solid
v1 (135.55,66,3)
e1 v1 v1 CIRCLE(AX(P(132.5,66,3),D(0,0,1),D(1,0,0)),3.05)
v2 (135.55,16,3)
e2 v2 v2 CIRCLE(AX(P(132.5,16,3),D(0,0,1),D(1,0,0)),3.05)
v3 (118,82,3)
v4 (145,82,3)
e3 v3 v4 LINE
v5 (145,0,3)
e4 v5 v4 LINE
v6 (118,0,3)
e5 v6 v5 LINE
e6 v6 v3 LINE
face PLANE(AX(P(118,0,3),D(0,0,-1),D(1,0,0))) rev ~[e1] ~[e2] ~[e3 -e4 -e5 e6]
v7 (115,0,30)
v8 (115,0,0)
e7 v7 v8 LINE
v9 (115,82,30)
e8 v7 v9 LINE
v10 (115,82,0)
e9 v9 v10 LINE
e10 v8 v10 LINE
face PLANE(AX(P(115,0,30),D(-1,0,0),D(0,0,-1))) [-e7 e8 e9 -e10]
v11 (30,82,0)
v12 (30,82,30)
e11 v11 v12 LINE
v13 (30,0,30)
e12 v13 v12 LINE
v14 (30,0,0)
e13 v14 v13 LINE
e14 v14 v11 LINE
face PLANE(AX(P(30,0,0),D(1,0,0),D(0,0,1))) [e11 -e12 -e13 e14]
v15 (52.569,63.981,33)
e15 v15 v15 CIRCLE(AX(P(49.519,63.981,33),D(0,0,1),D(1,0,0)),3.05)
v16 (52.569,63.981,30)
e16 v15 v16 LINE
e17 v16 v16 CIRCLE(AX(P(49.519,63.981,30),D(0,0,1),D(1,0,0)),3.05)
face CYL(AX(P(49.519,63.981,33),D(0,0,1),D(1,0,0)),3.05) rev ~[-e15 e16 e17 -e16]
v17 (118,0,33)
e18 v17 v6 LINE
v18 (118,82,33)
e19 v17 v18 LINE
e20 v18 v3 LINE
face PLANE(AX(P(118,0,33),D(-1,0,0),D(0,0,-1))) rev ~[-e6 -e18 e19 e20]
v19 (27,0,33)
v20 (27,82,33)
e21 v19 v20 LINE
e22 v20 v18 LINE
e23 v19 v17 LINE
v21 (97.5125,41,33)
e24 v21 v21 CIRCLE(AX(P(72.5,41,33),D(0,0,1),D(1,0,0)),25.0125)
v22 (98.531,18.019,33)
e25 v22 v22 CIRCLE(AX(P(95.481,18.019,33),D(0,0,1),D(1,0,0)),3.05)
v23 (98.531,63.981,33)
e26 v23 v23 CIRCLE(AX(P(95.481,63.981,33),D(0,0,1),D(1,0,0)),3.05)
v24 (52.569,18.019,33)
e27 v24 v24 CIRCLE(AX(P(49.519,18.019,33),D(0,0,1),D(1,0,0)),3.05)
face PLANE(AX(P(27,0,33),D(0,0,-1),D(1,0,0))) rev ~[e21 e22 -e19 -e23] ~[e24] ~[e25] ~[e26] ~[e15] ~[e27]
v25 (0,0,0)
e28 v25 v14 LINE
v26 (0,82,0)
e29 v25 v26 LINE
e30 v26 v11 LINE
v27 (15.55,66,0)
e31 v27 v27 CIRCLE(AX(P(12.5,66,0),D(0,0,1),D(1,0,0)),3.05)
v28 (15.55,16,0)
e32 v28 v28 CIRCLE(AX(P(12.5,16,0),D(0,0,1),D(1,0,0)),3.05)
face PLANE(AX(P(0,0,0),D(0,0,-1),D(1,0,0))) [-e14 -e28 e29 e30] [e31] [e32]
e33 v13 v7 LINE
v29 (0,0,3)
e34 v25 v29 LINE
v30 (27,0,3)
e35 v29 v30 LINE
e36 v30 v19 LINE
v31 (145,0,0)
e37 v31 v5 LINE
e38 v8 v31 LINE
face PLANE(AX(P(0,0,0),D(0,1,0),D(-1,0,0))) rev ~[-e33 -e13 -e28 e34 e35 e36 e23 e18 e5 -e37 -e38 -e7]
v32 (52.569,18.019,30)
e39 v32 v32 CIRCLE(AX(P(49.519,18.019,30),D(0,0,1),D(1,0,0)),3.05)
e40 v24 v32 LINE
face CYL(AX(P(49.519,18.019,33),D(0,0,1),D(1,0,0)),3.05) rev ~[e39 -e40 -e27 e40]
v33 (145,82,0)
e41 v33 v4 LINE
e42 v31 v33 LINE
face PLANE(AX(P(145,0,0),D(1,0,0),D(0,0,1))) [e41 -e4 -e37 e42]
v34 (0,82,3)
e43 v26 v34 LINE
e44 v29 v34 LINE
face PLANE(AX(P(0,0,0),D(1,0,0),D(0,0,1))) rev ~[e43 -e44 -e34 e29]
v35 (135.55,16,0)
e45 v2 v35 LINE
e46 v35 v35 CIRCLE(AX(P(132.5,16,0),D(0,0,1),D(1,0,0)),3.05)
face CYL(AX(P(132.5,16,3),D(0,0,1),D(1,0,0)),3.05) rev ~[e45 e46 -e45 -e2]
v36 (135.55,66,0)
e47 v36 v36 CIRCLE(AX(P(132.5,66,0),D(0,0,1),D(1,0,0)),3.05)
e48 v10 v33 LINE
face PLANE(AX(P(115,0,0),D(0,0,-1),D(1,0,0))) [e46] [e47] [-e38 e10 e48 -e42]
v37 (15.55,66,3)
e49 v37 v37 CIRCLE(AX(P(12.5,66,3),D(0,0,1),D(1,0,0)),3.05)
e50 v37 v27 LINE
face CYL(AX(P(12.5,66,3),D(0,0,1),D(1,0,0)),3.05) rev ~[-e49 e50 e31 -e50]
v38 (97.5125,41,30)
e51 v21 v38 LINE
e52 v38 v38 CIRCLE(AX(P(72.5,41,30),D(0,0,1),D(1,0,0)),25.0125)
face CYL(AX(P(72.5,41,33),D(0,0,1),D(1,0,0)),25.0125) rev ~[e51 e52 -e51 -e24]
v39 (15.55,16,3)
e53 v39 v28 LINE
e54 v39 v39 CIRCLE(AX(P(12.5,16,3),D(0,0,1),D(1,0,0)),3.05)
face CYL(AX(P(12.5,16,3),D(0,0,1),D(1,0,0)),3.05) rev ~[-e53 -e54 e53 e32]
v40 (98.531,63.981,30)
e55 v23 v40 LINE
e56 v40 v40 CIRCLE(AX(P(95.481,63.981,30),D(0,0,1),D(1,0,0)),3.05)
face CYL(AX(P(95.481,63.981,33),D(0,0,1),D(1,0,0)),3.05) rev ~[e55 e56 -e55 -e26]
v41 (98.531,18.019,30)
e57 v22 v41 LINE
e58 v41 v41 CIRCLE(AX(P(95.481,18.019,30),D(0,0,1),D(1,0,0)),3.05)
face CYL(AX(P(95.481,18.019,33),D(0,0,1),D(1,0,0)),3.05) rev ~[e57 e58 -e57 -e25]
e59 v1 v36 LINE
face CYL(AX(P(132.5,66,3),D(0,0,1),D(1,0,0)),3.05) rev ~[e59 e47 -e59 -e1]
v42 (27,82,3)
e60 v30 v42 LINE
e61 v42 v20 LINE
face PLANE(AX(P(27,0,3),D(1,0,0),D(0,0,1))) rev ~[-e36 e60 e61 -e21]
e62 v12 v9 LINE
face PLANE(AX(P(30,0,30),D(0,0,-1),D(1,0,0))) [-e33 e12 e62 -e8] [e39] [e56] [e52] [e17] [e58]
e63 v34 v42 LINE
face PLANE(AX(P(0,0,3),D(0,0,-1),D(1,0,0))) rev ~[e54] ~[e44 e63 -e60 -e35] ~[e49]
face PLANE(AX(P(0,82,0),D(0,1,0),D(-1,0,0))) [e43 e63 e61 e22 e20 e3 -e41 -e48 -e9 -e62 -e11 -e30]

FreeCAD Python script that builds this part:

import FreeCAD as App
import Part
import Sketcher
from FreeCAD import Vector


def add_polygon(sketch, points):
    """Adds a closed chain of lines whose ends are joined by coincident constraints."""
    first, n = sketch.GeometryCount, len(points)
    for a, b in zip(points, points[1:] + points[:1]):
        sketch.addGeometry(Part.LineSegment(App.Vector(*a, 0), App.Vector(*b, 0)), False)
    for i in range(n):
        sketch.addConstraint(Sketcher.Constraint("Coincident", first + i, 2, first + (i + 1) % n, 1))

doc = App.newDocument("Part")
body = doc.addObject("PartDesign::Body", "Body")

# Sketch on XZ plane
sketch1 = doc.addObject("Sketcher::SketchObject", "Sketch")
body.addObject(sketch1)
sketch1.AttachmentSupport = (doc.XZ_Plane, [""])
sketch1.MapMode = "FlatFace"
add_polygon(sketch1, [(30, 0), (0, 0), (0, 3), (27, 3), (27, 33), (118, 33), (118, 3), (145, 3), (145, 0), (115, 0), (115, 30), (30, 30)])  # lines 0-11
sketch1.addConstraint(Sketcher.Constraint("Horizontal", 0))
sketch1.addConstraint(Sketcher.Constraint("Vertical", 1))
sketch1.addConstraint(Sketcher.Constraint("Horizontal", 2))
sketch1.addConstraint(Sketcher.Constraint("Vertical", 3))
sketch1.addConstraint(Sketcher.Constraint("Horizontal", 4))
sketch1.addConstraint(Sketcher.Constraint("Vertical", 5))
sketch1.addConstraint(Sketcher.Constraint("Horizontal", 6))
sketch1.addConstraint(Sketcher.Constraint("Vertical", 7))
sketch1.addConstraint(Sketcher.Constraint("Horizontal", 8))
sketch1.addConstraint(Sketcher.Constraint("Vertical", 9))
sketch1.addConstraint(Sketcher.Constraint("Horizontal", 10))
sketch1.addConstraint(Sketcher.Constraint("Vertical", 11))
sketch1.addConstraint(Sketcher.Constraint("Coincident", 0, 2, -1, 1))
sketch1.addConstraint(Sketcher.Constraint("PointOnObject", 7, 2, -1))
sketch1.addConstraint(Sketcher.Constraint("Horizontal", 2, 2, 5, 2))
sketch1.addConstraint(Sketcher.Constraint("Equal", 2, 6))
sketch1.addConstraint(Sketcher.Constraint("Equal", 0, 8))
sketch1.addConstraint(Sketcher.Constraint("Equal", 8, 3))
sketch1.addConstraint(Sketcher.Constraint("Equal", 5, 9))
sketch1.addConstraint(Sketcher.Constraint("DistanceX", 0, 2, 0, 1, 30.0))
sketch1.addConstraint(Sketcher.Constraint("DistanceX", 10, 2, 10, 1, 85.0))
sketch1.addConstraint(Sketcher.Constraint("DistanceY", 1, 1, 1, 2, 3.0))
sketch1.addConstraint(Sketcher.Constraint("DistanceX", 8, 2, 5, 2, 3.0))
pad1 = doc.addObject("PartDesign::Pad", "Pad")
body.addObject(pad1)
pad1.Profile = sketch1
pad1.Length = 82
pad1.Reversed = True

# Sketch on XY plane
sketch2 = doc.addObject("Sketcher::SketchObject", "Sketch001")
body.addObject(sketch2)
sketch2.AttachmentSupport = (doc.XY_Plane, [""])
sketch2.MapMode = "FlatFace"
sketch2.AttachmentOffset = App.Placement(Vector(0, 0, 33), App.Rotation())
sketch2.addGeometry(Part.Circle(Vector(95.5, 64, 0), Vector(0, 0, 1), 3), False)
sketch2.addGeometry(Part.Circle(Vector(49.5, 64, 0), Vector(0, 0, 1), 3), False)
sketch2.addGeometry(Part.Circle(Vector(49.5, 18, 0), Vector(0, 0, 1), 3), False)
sketch2.addGeometry(Part.Circle(Vector(95.5, 18, 0), Vector(0, 0, 1), 3), False)
sketch2.addGeometry(Part.Circle(Vector(72.5, 41, 0), Vector(0, 0, 1), 25), False)
sketch2.addConstraint(Sketcher.Constraint("Equal", 0, 1))
sketch2.addConstraint(Sketcher.Constraint("Equal", 1, 2))
sketch2.addConstraint(Sketcher.Constraint("Equal", 2, 3))
sketch2.addConstraint(Sketcher.Constraint("Horizontal", 0, 3, 1, 3))
sketch2.addConstraint(Sketcher.Constraint("Horizontal", 2, 3, 3, 3))
sketch2.addConstraint(Sketcher.Constraint("Vertical", 1, 3, 2, 3))
sketch2.addConstraint(Sketcher.Constraint("Vertical", 0, 3, 3, 3))
sketch2.addConstraint(Sketcher.Constraint("Diameter", 0, 6.1))
sketch2.addConstraint(Sketcher.Constraint("Diameter", 4, 50.025))
sketch2.addConstraint(Sketcher.Constraint("DistanceY", -1, 1, 4, 3, 41.0))
sketch2.addConstraint(Sketcher.Constraint("DistanceX", -1, 1, 4, 3, 72.5))
sketch2.addConstraint(Sketcher.Constraint("DistanceX", -1, 1, 0, 3, 95.481))
sketch2.addConstraint(Sketcher.Constraint("DistanceY", -1, 1, 0, 3, 63.981))
sketch2.addConstraint(Sketcher.Constraint("DistanceX", -1, 1, 1, 3, 49.519))
sketch2.addConstraint(Sketcher.Constraint("DistanceY", -1, 1, 2, 3, 18.019))
pocket1 = doc.addObject("PartDesign::Pocket", "Pocket")
body.addObject(pocket1)
pocket1.Profile = sketch2
pocket1.Length = 82

# Sketch on XY plane
sketch3 = doc.addObject("Sketcher::SketchObject", "Sketch002")
body.addObject(sketch3)
sketch3.AttachmentSupport = (doc.XY_Plane, [""])
sketch3.MapMode = "FlatFace"
sketch3.AttachmentOffset = App.Placement(Vector(0, 0, 3), App.Rotation())
sketch3.addGeometry(Part.Circle(Vector(12.5, 66, 0), Vector(0, 0, 1), 3), False)
sketch3.addGeometry(Part.Circle(Vector(12.5, 16, 0), Vector(0, 0, 1), 3), False)
sketch3.addGeometry(Part.Circle(Vector(132.5, 66, 0), Vector(0, 0, 1), 3), False)
sketch3.addGeometry(Part.Circle(Vector(132.5, 16, 0), Vector(0, 0, 1), 3), False)
sketch3.addConstraint(Sketcher.Constraint("Equal", 0, 1))
sketch3.addConstraint(Sketcher.Constraint("Equal", 1, 2))
sketch3.addConstraint(Sketcher.Constraint("Equal", 2, 3))
sketch3.addConstraint(Sketcher.Constraint("Horizontal", 0, 3, 2, 3))
sketch3.addConstraint(Sketcher.Constraint("Horizontal", 1, 3, 3, 3))
sketch3.addConstraint(Sketcher.Constraint("Vertical", 0, 3, 1, 3))
sketch3.addConstraint(Sketcher.Constraint("Vertical", 2, 3, 3, 3))
sketch3.addConstraint(Sketcher.Constraint("Diameter", 0, 6.1))
sketch3.addConstraint(Sketcher.Constraint("DistanceY", 1, 3, 0, 3, 50.0))
sketch3.addConstraint(Sketcher.Constraint("DistanceX", 0, 3, 2, 3, 120.0))
sketch3.addConstraint(Sketcher.Constraint("DistanceY", -1, 1, 0, 3, 66.0))
sketch3.addConstraint(Sketcher.Constraint("DistanceX", -1, 1, 0, 3, 12.5))
pocket2 = doc.addObject("PartDesign::Pocket", "Pocket001")
body.addObject(pocket2)
pocket2.Profile = sketch3
pocket2.Length = 10

doc.recompute()
